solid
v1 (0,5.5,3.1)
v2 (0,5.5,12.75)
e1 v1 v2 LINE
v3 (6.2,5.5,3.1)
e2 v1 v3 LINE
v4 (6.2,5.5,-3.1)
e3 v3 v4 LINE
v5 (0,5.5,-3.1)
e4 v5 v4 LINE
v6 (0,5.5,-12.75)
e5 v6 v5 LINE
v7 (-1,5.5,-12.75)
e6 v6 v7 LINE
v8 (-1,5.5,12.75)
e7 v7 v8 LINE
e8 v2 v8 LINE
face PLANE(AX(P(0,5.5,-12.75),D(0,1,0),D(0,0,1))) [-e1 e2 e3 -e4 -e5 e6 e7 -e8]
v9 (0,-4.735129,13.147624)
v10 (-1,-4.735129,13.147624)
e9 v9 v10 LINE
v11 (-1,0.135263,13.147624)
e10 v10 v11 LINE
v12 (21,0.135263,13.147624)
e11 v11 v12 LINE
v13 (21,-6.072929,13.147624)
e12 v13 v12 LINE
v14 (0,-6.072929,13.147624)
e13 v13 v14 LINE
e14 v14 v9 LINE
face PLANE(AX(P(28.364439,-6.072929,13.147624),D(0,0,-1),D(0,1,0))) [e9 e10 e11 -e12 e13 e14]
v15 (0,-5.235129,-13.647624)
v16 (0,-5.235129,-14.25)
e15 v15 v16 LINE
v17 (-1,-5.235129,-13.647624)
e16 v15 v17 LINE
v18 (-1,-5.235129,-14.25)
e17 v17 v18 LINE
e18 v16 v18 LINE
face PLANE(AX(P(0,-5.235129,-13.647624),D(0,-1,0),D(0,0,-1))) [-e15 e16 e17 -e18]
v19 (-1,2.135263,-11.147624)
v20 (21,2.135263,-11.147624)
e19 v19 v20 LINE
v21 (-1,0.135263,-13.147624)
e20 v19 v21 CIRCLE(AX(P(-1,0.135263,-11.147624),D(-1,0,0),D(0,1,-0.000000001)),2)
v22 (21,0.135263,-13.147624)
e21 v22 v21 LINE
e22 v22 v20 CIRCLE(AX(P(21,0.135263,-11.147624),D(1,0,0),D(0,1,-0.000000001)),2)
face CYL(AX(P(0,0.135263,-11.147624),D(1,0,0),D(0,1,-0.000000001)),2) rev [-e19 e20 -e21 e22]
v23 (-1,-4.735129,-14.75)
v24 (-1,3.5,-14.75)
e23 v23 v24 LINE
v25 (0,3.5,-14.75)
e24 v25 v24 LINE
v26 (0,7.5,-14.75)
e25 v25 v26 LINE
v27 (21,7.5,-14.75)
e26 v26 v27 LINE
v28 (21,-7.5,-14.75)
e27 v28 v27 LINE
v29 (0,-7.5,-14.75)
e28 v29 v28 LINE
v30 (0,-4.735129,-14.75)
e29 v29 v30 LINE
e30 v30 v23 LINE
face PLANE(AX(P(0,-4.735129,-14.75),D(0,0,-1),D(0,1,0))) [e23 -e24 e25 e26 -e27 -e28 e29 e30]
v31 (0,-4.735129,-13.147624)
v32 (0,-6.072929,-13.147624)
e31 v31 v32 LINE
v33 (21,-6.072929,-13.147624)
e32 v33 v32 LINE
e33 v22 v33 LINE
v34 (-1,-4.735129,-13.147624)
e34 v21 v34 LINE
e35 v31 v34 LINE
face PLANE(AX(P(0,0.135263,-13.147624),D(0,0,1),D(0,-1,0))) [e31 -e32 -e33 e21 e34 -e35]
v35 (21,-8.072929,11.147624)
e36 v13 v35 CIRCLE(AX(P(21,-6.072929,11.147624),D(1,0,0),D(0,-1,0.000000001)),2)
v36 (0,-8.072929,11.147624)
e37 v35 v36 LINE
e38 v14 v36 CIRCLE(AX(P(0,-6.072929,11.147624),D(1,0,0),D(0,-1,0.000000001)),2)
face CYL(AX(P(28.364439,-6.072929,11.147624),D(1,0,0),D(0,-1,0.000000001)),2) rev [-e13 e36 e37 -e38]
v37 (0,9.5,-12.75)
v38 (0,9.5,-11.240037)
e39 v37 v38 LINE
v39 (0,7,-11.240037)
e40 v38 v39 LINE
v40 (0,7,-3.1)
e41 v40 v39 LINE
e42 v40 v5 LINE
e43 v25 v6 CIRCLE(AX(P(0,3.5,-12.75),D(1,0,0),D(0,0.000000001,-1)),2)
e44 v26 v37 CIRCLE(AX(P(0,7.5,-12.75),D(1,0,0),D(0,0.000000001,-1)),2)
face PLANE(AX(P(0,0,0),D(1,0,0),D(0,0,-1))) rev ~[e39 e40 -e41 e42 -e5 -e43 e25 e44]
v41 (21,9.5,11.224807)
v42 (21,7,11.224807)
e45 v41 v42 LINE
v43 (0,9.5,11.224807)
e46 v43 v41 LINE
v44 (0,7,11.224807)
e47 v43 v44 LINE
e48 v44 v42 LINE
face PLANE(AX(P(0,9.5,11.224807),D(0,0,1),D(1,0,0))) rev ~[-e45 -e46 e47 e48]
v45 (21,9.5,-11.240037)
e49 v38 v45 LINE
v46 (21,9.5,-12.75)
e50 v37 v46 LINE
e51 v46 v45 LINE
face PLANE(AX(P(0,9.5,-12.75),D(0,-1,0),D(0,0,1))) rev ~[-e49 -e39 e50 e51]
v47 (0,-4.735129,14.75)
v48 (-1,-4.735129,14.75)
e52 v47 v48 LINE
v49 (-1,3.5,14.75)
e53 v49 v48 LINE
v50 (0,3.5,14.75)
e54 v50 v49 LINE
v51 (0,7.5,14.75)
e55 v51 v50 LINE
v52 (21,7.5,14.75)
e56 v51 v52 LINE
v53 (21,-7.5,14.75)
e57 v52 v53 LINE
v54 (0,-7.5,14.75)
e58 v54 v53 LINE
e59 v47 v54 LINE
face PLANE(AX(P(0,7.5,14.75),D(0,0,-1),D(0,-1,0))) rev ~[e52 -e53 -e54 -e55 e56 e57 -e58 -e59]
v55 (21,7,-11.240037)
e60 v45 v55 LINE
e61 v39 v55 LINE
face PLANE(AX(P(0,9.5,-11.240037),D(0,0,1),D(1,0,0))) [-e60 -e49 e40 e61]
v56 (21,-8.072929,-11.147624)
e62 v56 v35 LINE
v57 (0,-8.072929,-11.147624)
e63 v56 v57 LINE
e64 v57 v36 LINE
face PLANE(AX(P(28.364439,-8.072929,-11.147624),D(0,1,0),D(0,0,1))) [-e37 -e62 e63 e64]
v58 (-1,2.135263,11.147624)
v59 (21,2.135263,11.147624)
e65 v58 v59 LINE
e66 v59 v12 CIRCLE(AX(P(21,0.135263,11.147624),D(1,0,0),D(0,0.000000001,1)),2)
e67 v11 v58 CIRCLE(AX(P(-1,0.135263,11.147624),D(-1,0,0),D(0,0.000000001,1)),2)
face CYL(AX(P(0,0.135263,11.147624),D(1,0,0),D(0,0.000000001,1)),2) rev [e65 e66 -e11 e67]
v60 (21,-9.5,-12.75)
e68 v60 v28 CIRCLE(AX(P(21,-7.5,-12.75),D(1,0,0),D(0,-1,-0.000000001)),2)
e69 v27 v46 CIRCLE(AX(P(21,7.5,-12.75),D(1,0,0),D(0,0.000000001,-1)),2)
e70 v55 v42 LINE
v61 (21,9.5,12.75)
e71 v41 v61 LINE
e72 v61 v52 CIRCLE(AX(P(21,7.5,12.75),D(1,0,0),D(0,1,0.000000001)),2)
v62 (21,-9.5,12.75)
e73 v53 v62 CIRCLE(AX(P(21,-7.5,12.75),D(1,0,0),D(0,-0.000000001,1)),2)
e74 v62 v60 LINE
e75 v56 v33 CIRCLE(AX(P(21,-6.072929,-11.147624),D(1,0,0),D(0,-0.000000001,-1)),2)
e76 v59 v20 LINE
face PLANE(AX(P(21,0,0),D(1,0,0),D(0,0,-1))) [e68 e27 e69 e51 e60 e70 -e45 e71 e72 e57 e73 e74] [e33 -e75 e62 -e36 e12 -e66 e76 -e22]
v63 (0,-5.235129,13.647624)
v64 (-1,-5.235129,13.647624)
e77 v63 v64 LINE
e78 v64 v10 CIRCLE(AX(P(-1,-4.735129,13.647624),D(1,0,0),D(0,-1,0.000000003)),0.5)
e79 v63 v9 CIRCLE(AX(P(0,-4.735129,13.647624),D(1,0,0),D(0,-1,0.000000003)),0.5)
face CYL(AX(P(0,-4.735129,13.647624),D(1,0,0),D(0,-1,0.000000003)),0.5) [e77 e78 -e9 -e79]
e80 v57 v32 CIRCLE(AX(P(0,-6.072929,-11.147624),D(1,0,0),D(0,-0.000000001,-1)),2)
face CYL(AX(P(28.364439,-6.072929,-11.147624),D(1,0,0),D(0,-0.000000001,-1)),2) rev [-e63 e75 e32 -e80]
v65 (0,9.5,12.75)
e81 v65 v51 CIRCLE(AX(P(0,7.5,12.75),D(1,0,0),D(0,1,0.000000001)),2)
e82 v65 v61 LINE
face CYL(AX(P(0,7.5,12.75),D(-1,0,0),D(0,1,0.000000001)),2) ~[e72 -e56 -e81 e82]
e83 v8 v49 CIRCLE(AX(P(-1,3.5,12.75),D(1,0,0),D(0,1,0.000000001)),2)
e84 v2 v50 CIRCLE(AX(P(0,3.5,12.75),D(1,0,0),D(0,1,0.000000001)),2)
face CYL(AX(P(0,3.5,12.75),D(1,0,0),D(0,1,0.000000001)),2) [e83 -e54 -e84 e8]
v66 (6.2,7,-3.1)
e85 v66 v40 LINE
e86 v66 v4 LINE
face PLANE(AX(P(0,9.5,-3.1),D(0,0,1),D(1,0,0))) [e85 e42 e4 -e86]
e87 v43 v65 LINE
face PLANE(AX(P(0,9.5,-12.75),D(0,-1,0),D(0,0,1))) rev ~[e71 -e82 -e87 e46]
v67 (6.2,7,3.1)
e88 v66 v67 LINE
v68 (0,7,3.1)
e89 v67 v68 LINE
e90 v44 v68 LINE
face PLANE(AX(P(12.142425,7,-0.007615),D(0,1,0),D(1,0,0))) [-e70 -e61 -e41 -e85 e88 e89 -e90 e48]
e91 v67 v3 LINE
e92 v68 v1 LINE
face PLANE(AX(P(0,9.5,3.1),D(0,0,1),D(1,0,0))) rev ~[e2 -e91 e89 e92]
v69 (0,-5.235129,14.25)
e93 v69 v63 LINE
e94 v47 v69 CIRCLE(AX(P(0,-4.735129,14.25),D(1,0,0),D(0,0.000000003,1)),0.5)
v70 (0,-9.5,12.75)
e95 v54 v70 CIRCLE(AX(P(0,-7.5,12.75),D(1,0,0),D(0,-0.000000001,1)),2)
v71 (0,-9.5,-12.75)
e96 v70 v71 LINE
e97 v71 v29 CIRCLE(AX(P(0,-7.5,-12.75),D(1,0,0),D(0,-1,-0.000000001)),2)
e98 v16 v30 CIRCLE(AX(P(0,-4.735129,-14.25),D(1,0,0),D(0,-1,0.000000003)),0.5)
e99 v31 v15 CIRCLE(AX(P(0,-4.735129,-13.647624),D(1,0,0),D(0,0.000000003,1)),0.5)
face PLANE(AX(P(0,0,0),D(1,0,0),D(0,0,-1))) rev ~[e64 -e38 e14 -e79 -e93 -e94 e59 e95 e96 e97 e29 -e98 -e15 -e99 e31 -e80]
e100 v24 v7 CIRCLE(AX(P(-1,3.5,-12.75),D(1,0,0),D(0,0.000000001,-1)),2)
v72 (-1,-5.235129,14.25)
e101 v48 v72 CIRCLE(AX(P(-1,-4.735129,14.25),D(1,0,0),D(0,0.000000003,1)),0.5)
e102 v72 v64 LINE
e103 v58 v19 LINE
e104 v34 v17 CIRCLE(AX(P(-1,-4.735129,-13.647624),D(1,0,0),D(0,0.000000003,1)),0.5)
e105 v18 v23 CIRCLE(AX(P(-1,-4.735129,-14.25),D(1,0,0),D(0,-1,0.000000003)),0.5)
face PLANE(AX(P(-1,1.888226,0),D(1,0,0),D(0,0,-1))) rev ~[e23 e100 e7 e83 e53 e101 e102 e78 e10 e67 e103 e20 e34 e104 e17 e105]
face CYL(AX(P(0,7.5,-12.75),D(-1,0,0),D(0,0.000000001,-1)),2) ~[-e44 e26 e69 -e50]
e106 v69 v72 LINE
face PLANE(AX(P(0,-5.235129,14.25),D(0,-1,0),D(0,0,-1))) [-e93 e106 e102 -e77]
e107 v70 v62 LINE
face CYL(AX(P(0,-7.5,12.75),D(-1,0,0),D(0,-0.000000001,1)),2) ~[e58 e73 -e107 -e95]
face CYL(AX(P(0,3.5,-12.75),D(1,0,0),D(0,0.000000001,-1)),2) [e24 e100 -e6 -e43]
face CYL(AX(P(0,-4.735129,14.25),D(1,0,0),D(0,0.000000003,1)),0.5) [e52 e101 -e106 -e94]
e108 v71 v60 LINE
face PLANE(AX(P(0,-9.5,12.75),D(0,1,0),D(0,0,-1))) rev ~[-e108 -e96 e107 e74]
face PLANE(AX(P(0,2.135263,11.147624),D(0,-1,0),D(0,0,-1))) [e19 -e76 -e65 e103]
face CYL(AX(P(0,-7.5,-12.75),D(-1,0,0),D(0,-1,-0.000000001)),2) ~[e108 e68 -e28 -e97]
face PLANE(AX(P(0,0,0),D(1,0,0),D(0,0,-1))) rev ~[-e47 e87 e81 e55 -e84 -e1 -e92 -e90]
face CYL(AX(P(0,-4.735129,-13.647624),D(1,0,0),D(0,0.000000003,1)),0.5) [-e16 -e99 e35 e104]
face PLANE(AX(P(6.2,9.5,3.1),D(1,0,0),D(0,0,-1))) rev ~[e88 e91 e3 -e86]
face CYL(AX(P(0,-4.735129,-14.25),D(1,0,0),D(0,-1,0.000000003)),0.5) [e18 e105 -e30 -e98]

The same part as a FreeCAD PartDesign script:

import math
import FreeCAD as App
import Part
import Sketcher
from FreeCAD import Vector


def add_polygon(sketch, points):
    """Adds a closed chain of lines whose ends are joined by coincident constraints."""
    first, n = sketch.GeometryCount, len(points)
    for a, b in zip(points, points[1:] + points[:1]):
        sketch.addGeometry(Part.LineSegment(App.Vector(*a, 0), App.Vector(*b, 0)), False)
    for i in range(n):
        sketch.addConstraint(Sketcher.Constraint("Coincident", first + i, 2, first + (i + 1) % n, 1))

doc = App.newDocument("Part")
params = doc.addObject("Spreadsheet::Sheet", "Params")
for row, (alias, value) in enumerate([
    ("sketch1_radius", "2 mm"),
    ("sketch1_width", "15 mm"),
    ("sketch1_height", "25.5 mm"),
    ("pad1_length", "21 mm"),
    ("sketch2_width", "6.2 mm"),
    ("pocket1_length", "4 mm"),
    ("sketch3_radius", "2 mm"),
    ("pocket3_length", "2.5 mm"),
    ("sketch5_radius", "2 mm"),
    ("sketch5_radius2", "0.5 mm"),
    ("sketch5_height", "25.5 mm"),
    ("pad2_length", "1 mm"),
], start=1):
    params.set(f"A{row}", alias)
    params.set(f"B{row}", "=" + value)
    params.setAlias(f"B{row}", alias)

body = doc.addObject("PartDesign::Body", "Body")

# Sketch on YZ plane
sketch1 = doc.addObject("Sketcher::SketchObject", "Sketch")
body.addObject(sketch1)
sketch1.AttachmentSupport = (doc.YZ_Plane, [""])
sketch1.MapMode = "FlatFace"
sketch1.addGeometry(Part.LineSegment(Vector(-9.5, 12.8, 0), Vector(-9.5, -12.8, 0)), False)
sketch1.addGeometry(Part.ArcOfCircle(Part.Circle(Vector(-7.5, -12.7, 0), Vector(0, 0, 1), 2), math.radians(-180), math.radians(-90)), False)
sketch1.addGeometry(Part.LineSegment(Vector(-7.5, -14.8, 0), Vector(7.5, -14.8, 0)), False)
sketch1.addGeometry(Part.ArcOfCircle(Part.Circle(Vector(7.5, -12.7, 0), Vector(0, 0, 1), 2), math.radians(-90), math.radians(0)), False)
sketch1.addGeometry(Part.LineSegment(Vector(9.5, -12.8, 0), Vector(9.5, 12.8, 0)), False)
sketch1.addGeometry(Part.ArcOfCircle(Part.Circle(Vector(7.5, 12.7, 0), Vector(0, 0, 1), 2), math.radians(0), math.radians(90)), False)
sketch1.addGeometry(Part.LineSegment(Vector(7.5, 14.8, 0), Vector(-7.5, 14.8, 0)), False)
sketch1.addGeometry(Part.ArcOfCircle(Part.Circle(Vector(-7.5, 12.7, 0), Vector(0, 0, 1), 2), math.radians(90), math.radians(180)), False)
sketch1.addConstraint(Sketcher.Constraint("Tangent", 0, 2, 1, 1))
sketch1.addConstraint(Sketcher.Constraint("Tangent", 1, 2, 2, 1))
sketch1.addConstraint(Sketcher.Constraint("Tangent", 2, 2, 3, 1))
sketch1.addConstraint(Sketcher.Constraint("Tangent", 3, 2, 4, 1))
sketch1.addConstraint(Sketcher.Constraint("Tangent", 4, 2, 5, 1))
sketch1.addConstraint(Sketcher.Constraint("Tangent", 5, 2, 6, 1))
sketch1.addConstraint(Sketcher.Constraint("Tangent", 6, 2, 7, 1))
sketch1.addConstraint(Sketcher.Constraint("Tangent", 7, 2, 0, 1))
sketch1.addConstraint(Sketcher.Constraint("Vertical", 0))
sketch1.addConstraint(Sketcher.Constraint("Horizontal", 2))
sketch1.addConstraint(Sketcher.Constraint("Vertical", 4))
sketch1.addConstraint(Sketcher.Constraint("Horizontal", 6))
sketch1.addConstraint(Sketcher.Constraint("Equal", 1, 3))
sketch1.addConstraint(Sketcher.Constraint("Equal", 3, 5))
sketch1.addConstraint(Sketcher.Constraint("Equal", 5, 7))
sketch1.addConstraint(Sketcher.Constraint("Symmetric", 1, 3, 5, 3, -1, 1))
sketch1.addConstraint(Sketcher.Constraint("Radius", 1, 2.0))
sketch1.addConstraint(Sketcher.Constraint("DistanceX", 2, 1, 2, 2, 15.0))
sketch1.addConstraint(Sketcher.Constraint("DistanceY", 0, 2, 0, 1, 25.5))
sketch1.setExpression("Constraints[16]", "Params.sketch1_radius")
sketch1.setExpression("Constraints[17]", "Params.sketch1_width")
sketch1.setExpression("Constraints[18]", "Params.sketch1_height")
pad1 = doc.addObject("PartDesign::Pad", "Pad")
body.addObject(pad1)
pad1.Profile = sketch1
pad1.setExpression("Length", "Params.pad1_length")

# Sketch on XZ plane
sketch2 = doc.addObject("Sketcher::SketchObject", "Sketch001")
body.addObject(sketch2)
sketch2.AttachmentSupport = (doc.XZ_Plane, [""])
sketch2.MapMode = "FlatFace"
sketch2.AttachmentOffset = App.Placement(Vector(0, 0, -9.5), App.Rotation())
add_polygon(sketch2, [(0, -3), (0, 3), (6, 3), (6, -3)])  # lines 0-3
sketch2.addConstraint(Sketcher.Constraint("Vertical", 0))
sketch2.addConstraint(Sketcher.Constraint("Horizontal", 1))
sketch2.addConstraint(Sketcher.Constraint("Vertical", 2))
sketch2.addConstraint(Sketcher.Constraint("Horizontal", 3))
sketch2.addConstraint(Sketcher.Constraint("Symmetric", 0, 2, 3, 2, -1, 1))
sketch2.addConstraint(Sketcher.Constraint("Equal", 3, 0))
sketch2.addConstraint(Sketcher.Constraint("DistanceX", 1, 1, 1, 2, 6.2))
sketch2.setExpression("Constraints[10]", "Params.sketch2_width")
pocket1 = doc.addObject("PartDesign::Pocket", "Pocket")
body.addObject(pocket1)
pocket1.Profile = sketch2
pocket1.setExpression("Length", "Params.pocket1_length")
pocket1.Reversed = True

# Sketch on YZ plane
sketch3 = doc.addObject("Sketcher::SketchObject", "Sketch002")
body.addObject(sketch3)
sketch3.AttachmentSupport = (doc.YZ_Plane, [""])
sketch3.MapMode = "FlatFace"
sketch3.addGeometry(Part.LineSegment(Vector(-8.1, -11.1, 0), Vector(-8.1, 11.1, 0)), False)
sketch3.addGeometry(Part.ArcOfCircle(Part.Circle(Vector(-6.1, 11.1, 0), Vector(0, 0, 1), 2), math.radians(90), math.radians(180)), False)
sketch3.addGeometry(Part.LineSegment(Vector(-6.1, 13.1, 0), Vector(0.1, 13.1, 0)), False)
sketch3.addGeometry(Part.ArcOfCircle(Part.Circle(Vector(0.1, 11.1, 0), Vector(0, 0, 1), 2), math.radians(0), math.radians(90)), False)
sketch3.addGeometry(Part.LineSegment(Vector(2.1, 11.1, 0), Vector(2.1, -11.1, 0)), False)
sketch3.addGeometry(Part.ArcOfCircle(Part.Circle(Vector(0.1, -11.1, 0), Vector(0, 0, 1), 2), math.radians(-90), math.radians(0)), False)
sketch3.addGeometry(Part.LineSegment(Vector(0.1, -13.1, 0), Vector(-6.1, -13.1, 0)), False)
sketch3.addGeometry(Part.ArcOfCircle(Part.Circle(Vector(-6.1, -11.1, 0), Vector(0, 0, 1), 2), math.radians(-180), math.radians(-90)), False)
sketch3.addConstraint(Sketcher.Constraint("Tangent", 0, 2, 1, 2))
sketch3.addConstraint(Sketcher.Constraint("Tangent", 1, 1, 2, 1))
sketch3.addConstraint(Sketcher.Constraint("Tangent", 2, 2, 3, 2))
sketch3.addConstraint(Sketcher.Constraint("Tangent", 3, 1, 4, 1))
sketch3.addConstraint(Sketcher.Constraint("Tangent", 4, 2, 5, 2))
sketch3.addConstraint(Sketcher.Constraint("Tangent", 5, 1, 6, 1))
sketch3.addConstraint(Sketcher.Constraint("Tangent", 6, 2, 7, 2))
sketch3.addConstraint(Sketcher.Constraint("Tangent", 7, 1, 0, 1))
sketch3.addConstraint(Sketcher.Constraint("Vertical", 0))
sketch3.addConstraint(Sketcher.Constraint("Horizontal", 2))
sketch3.addConstraint(Sketcher.Constraint("Vertical", 4))
sketch3.addConstraint(Sketcher.Constraint("Horizontal", 6))
sketch3.addConstraint(Sketcher.Constraint("Equal", 1, 3))
sketch3.addConstraint(Sketcher.Constraint("Equal", 3, 5))
sketch3.addConstraint(Sketcher.Constraint("Equal", 5, 7))
sketch3.addConstraint(Sketcher.Constraint("Radius", 1, 2.0))
sketch3.addConstraint(Sketcher.Constraint("DistanceX", 2, 1, 2, 2, 6.208192))
sketch3.addConstraint(Sketcher.Constraint("DistanceY", 0, 1, 0, 2, 22.295247))
sketch3.addConstraint(Sketcher.Constraint("DistanceX", 1, 3, -1, 1, 6.072929))
sketch3.addConstraint(Sketcher.Constraint("DistanceY", -1, 1, 1, 3, 11.147624))
sketch3.setExpression("Constraints[15]", "Params.sketch3_radius")
pocket2 = doc.addObject("PartDesign::Pocket", "Pocket001")
body.addObject(pocket2)
pocket2.Profile = sketch3
pocket2.Type = "ThroughAll"
pocket2.Midplane = True

# Sketch on XZ plane
sketch4 = doc.addObject("Sketcher::SketchObject", "Sketch003")
body.addObject(sketch4)
sketch4.AttachmentSupport = (doc.XZ_Plane, [""])
sketch4.MapMode = "FlatFace"
sketch4.AttachmentOffset = App.Placement(Vector(0, 0, -9.5), App.Rotation())
add_polygon(sketch4, [(0, -11), (0, 11), (24, 11), (24, -11)])  # lines 0-3
sketch4.addConstraint(Sketcher.Constraint("Vertical", 0))
sketch4.addConstraint(Sketcher.Constraint("Horizontal", 1))
sketch4.addConstraint(Sketcher.Constraint("Vertical", 2))
sketch4.addConstraint(Sketcher.Constraint("Horizontal", 3))
sketch4.addConstraint(Sketcher.Constraint("PointOnObject", 0, 2, -2))
sketch4.addConstraint(Sketcher.Constraint("DistanceX", 1, 1, 1, 2, 24.28485))
sketch4.addConstraint(Sketcher.Constraint("DistanceY", 0, 1, 0, 2, 22.464844))
sketch4.addConstraint(Sketcher.Constraint("DistanceY", -1, 1, 0, 2, 11.224807))
pocket3 = doc.addObject("PartDesign::Pocket", "Pocket002")
body.addObject(pocket3)
pocket3.Profile = sketch4
pocket3.setExpression("Length", "Params.pocket3_length")
pocket3.Reversed = True

# Sketch on YZ plane
sketch5 = doc.addObject("Sketcher::SketchObject", "Sketch004")
body.addObject(sketch5)
sketch5.AttachmentSupport = (doc.YZ_Plane, [""])
sketch5.MapMode = "FlatFace"
sketch5.addGeometry(Part.LineSegment(Vector(-5.24, -14.25, 0), Vector(-5.24, -13.65, 0)), False)
sketch5.addGeometry(Part.ArcOfCircle(Part.Circle(Vector(-4.74, -13.65, 0), Vector(0, 0, 1), 0.5), math.radians(90), math.radians(180)), False)
sketch5.addGeometry(Part.LineSegment(Vector(-4.74, -13.15, 0), Vector(0.14, -13.15, 0)), False)
sketch5.addGeometry(Part.ArcOfCircle(Part.Circle(Vector(0.14, -11.15, 0), Vector(0, 0, 1), 2), math.radians(-90), math.radians(0)), False)
sketch5.addGeometry(Part.LineSegment(Vector(2.14, -11.15, 0), Vector(2.14, 11.15, 0)), False)
sketch5.addGeometry(Part.ArcOfCircle(Part.Circle(Vector(0.14, 11.15, 0), Vector(0, 0, 1), 2), math.radians(0), math.radians(90)), False)
sketch5.addGeometry(Part.LineSegment(Vector(0.14, 13.15, 0), Vector(-4.74, 13.15, 0)), False)
sketch5.addGeometry(Part.ArcOfCircle(Part.Circle(Vector(-4.74, 13.65, 0), Vector(0, 0, 1), 0.5), math.radians(180), math.radians(270)), False)
sketch5.addGeometry(Part.LineSegment(Vector(-5.24, 13.65, 0), Vector(-5.24, 14.25, 0)), False)
sketch5.addGeometry(Part.ArcOfCircle(Part.Circle(Vector(-4.74, 14.25, 0), Vector(0, 0, 1), 0.5), math.radians(90), math.radians(180)), False)
sketch5.addGeometry(Part.LineSegment(Vector(-4.74, 14.75, 0), Vector(3.5, 14.75, 0)), False)
sketch5.addGeometry(Part.ArcOfCircle(Part.Circle(Vector(3.5, 12.75, 0), Vector(0, 0, 1), 2), math.radians(0), math.radians(90)), False)
sketch5.addGeometry(Part.LineSegment(Vector(5.5, 12.75, 0), Vector(5.5, -12.75, 0)), False)
sketch5.addGeometry(Part.ArcOfCircle(Part.Circle(Vector(3.5, -12.75, 0), Vector(0, 0, 1), 2), math.radians(-90), math.radians(0)), False)
sketch5.addGeometry(Part.LineSegment(Vector(3.5, -14.75, 0), Vector(-4.74, -14.75, 0)), False)
sketch5.addGeometry(Part.ArcOfCircle(Part.Circle(Vector(-4.74, -14.25, 0), Vector(0, 0, 1), 0.5), math.radians(180), math.radians(270)), False)
sketch5.addConstraint(Sketcher.Constraint("Tangent", 0, 2, 1, 2))
sketch5.addConstraint(Sketcher.Constraint("Tangent", 1, 1, 2, 1))
sketch5.addConstraint(Sketcher.Constraint("Tangent", 2, 2, 3, 1))
sketch5.addConstraint(Sketcher.Constraint("Tangent", 3, 2, 4, 1))
sketch5.addConstraint(Sketcher.Constraint("Tangent", 4, 2, 5, 1))
sketch5.addConstraint(Sketcher.Constraint("Tangent", 5, 2, 6, 1))
sketch5.addConstraint(Sketcher.Constraint("Tangent", 6, 2, 7, 2))
sketch5.addConstraint(Sketcher.Constraint("Tangent", 7, 1, 8, 1))
sketch5.addConstraint(Sketcher.Constraint("Tangent", 8, 2, 9, 2))
sketch5.addConstraint(Sketcher.Constraint("Tangent", 9, 1, 10, 1))
sketch5.addConstraint(Sketcher.Constraint("Tangent", 10, 2, 11, 2))
sketch5.addConstraint(Sketcher.Constraint("Tangent", 11, 1, 12, 1))
sketch5.addConstraint(Sketcher.Constraint("Tangent", 12, 2, 13, 2))
sketch5.addConstraint(Sketcher.Constraint("Tangent", 13, 1, 14, 1))
sketch5.addConstraint(Sketcher.Constraint("Tangent", 14, 2, 15, 2))
sketch5.addConstraint(Sketcher.Constraint("Tangent", 15, 1, 0, 1))
sketch5.addConstraint(Sketcher.Constraint("Vertical", 0))
sketch5.addConstraint(Sketcher.Constraint("Horizontal", 2))
sketch5.addConstraint(Sketcher.Constraint("Vertical", 4))
sketch5.addConstraint(Sketcher.Constraint("Horizontal", 6))
sketch5.addConstraint(Sketcher.Constraint("Vertical", 8))
sketch5.addConstraint(Sketcher.Constraint("Horizontal", 10))
sketch5.addConstraint(Sketcher.Constraint("Vertical", 12))
sketch5.addConstraint(Sketcher.Constraint("Horizontal", 14))
sketch5.addConstraint(Sketcher.Constraint("Equal", 3, 5))
sketch5.addConstraint(Sketcher.Constraint("Equal", 1, 7))
sketch5.addConstraint(Sketcher.Constraint("Equal", 7, 9))
sketch5.addConstraint(Sketcher.Constraint("Equal", 5, 11))
sketch5.addConstraint(Sketcher.Constraint("Equal", 11, 13))
sketch5.addConstraint(Sketcher.Constraint("Equal", 9, 15))
sketch5.addConstraint(Sketcher.Constraint("Symmetric", 1, 3, 7, 3, -1))
sketch5.addConstraint(Sketcher.Constraint("Equal", 0, 8))
sketch5.addConstraint(Sketcher.Constraint("Radius", 3, 2.0))
sketch5.addConstraint(Sketcher.Constraint("Radius", 1, 0.5))
sketch5.addConstraint(Sketcher.Constraint("DistanceY", 12, 2, 12, 1, 25.5))
sketch5.addConstraint(Sketcher.Constraint("DistanceX", -1, 1, 11, 3, 3.5))
sketch5.addConstraint(Sketcher.Constraint("DistanceX", 10, 1, 10, 2, 8.235129))
sketch5.addConstraint(Sketcher.Constraint("DistanceX", 2, 1, 2, 2, 4.870392))
sketch5.addConstraint(Sketcher.Constraint("DistanceY", 0, 1, 0, 2, 0.602376))
sketch5.setExpression("Constraints[32]", "Params.sketch5_radius")
sketch5.setExpression("Constraints[33]", "Params.sketch5_radius2")
sketch5.setExpression("Constraints[34]", "Params.sketch5_height")
pad2 = doc.addObject("PartDesign::Pad", "Pad001")
body.addObject(pad2)
pad2.Profile = sketch5
pad2.setExpression("Length", "Params.pad2_length")
pad2.Reversed = True

doc.recompute()
